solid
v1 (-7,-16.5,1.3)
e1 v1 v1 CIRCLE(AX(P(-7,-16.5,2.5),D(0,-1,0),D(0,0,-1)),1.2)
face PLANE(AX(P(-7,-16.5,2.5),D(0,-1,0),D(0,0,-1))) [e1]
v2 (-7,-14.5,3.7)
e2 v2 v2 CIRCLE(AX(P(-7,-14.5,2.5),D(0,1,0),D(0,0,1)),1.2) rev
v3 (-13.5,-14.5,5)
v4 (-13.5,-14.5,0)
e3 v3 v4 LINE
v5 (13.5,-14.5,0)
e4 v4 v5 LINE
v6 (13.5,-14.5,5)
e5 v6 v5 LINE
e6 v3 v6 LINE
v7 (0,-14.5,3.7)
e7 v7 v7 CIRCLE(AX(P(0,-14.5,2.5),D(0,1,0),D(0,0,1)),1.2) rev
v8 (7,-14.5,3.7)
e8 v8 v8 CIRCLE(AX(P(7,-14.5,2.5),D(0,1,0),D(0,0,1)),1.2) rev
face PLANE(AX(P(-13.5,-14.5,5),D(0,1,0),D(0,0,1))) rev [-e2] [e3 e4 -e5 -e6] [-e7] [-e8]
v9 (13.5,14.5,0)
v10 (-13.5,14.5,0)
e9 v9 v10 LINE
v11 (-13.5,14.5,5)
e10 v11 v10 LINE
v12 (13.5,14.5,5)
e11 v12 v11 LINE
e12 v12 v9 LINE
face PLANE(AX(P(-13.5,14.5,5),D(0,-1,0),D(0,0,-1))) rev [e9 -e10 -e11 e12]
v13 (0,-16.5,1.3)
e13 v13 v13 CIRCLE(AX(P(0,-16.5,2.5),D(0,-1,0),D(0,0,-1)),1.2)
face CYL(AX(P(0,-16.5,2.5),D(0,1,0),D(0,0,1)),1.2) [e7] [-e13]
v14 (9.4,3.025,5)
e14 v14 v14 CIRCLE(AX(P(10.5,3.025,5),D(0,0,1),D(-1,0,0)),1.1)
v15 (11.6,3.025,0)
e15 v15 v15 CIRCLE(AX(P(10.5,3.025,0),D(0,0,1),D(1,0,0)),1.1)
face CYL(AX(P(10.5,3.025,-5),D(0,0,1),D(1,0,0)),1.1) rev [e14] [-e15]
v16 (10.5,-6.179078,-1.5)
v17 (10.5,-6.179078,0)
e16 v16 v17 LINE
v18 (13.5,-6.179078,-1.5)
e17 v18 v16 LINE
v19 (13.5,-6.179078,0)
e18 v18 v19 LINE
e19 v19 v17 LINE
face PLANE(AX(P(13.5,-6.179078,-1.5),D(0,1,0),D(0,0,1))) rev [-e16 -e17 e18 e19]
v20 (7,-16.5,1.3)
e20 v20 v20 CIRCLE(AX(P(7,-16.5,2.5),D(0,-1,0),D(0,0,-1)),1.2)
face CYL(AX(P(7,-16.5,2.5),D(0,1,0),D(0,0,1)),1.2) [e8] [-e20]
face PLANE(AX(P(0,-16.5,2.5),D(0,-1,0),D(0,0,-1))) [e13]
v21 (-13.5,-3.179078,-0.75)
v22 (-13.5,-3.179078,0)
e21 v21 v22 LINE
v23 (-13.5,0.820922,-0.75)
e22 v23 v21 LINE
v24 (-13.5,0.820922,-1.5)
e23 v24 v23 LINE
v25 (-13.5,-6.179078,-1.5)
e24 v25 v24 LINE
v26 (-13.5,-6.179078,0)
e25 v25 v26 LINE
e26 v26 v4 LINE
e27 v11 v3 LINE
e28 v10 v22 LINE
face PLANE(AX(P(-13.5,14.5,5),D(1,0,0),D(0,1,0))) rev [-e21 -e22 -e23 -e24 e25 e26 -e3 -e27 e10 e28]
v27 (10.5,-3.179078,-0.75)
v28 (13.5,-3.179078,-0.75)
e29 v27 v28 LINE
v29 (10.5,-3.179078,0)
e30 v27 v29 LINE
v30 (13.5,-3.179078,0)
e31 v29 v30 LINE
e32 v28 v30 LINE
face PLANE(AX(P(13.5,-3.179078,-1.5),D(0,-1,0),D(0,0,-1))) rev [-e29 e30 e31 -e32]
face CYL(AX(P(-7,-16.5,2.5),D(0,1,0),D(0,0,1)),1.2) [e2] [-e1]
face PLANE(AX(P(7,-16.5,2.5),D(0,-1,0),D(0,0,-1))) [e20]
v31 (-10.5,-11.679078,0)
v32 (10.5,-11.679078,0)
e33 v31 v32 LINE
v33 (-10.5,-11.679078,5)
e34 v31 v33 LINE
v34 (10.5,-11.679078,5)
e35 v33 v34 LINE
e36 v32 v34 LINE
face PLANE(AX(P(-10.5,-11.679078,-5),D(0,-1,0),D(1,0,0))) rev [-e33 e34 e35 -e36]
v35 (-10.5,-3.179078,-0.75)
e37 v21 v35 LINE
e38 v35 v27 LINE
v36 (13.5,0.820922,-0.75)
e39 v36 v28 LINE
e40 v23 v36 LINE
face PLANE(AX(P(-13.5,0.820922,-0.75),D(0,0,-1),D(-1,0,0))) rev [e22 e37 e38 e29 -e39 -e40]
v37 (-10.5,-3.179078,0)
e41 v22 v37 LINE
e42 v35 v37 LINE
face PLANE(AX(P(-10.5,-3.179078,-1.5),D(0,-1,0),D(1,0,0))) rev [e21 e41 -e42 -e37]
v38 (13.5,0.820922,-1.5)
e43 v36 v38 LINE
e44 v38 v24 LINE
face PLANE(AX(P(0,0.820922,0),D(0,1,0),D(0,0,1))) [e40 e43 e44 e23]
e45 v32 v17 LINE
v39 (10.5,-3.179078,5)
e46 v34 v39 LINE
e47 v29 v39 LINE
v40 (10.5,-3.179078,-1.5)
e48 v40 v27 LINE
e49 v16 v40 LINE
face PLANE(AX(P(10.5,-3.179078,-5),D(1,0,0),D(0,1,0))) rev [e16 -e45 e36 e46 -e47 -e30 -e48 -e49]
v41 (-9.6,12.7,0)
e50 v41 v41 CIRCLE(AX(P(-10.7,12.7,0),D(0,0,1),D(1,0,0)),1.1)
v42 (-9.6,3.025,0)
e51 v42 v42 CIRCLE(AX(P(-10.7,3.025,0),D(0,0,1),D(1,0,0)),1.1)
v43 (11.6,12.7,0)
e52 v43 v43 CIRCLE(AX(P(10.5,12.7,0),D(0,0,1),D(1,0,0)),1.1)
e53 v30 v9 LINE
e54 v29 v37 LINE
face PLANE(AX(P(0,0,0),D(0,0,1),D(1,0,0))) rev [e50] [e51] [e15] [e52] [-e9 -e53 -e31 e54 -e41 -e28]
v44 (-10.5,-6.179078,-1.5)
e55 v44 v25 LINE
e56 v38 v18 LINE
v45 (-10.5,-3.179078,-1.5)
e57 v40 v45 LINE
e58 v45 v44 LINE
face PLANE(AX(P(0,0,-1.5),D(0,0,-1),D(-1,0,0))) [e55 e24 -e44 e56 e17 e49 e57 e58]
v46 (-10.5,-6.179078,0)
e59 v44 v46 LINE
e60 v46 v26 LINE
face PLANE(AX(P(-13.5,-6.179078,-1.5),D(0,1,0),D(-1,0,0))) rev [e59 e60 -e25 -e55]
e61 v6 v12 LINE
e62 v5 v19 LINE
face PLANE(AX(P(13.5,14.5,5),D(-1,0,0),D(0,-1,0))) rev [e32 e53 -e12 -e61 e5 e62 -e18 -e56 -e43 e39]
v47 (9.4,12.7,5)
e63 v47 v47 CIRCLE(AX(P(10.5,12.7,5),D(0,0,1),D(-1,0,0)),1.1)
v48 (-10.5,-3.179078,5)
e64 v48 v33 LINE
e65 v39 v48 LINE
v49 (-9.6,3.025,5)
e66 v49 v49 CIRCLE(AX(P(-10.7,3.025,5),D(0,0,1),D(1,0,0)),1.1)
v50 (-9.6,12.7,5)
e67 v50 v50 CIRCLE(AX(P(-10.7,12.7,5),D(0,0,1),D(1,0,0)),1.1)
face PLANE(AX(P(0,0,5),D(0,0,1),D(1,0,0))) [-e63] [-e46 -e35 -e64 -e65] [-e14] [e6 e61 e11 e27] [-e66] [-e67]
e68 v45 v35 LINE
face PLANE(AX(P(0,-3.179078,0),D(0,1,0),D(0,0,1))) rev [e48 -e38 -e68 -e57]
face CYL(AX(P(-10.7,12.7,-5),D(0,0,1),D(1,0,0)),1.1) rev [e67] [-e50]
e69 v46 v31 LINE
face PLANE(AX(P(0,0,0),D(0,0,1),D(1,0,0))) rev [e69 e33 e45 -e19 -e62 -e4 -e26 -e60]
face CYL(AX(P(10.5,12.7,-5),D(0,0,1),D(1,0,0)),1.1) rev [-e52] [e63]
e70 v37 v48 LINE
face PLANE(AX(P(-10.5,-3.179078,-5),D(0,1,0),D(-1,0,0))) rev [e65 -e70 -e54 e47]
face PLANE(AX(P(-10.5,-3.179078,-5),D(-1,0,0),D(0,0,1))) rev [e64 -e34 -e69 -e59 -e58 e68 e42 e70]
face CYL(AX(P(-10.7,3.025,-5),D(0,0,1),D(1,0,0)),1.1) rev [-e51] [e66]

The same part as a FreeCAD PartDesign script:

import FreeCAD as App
import Part
import Sketcher

V = App.Vector


def add_polygon(sketch, points):
    """Adds a closed chain of lines whose ends are joined by coincident constraints."""
    first, n = sketch.GeometryCount, len(points)
    for a, b in zip(points, points[1:] + points[:1]):
        sketch.addGeometry(Part.LineSegment(App.Vector(*a, 0), App.Vector(*b, 0)), False)
    for i in range(n):
        sketch.addConstraint(Sketcher.Constraint("Coincident", first + i, 2, first + (i + 1) % n, 1))

doc = App.newDocument("Part")
params = doc.addObject("Spreadsheet::Sheet", "Params")
for row, (alias, value) in enumerate([
    ("sketch1_width", "27 mm"),
    ("sketch1_height", "29 mm"),
    ("pad1_length", "5 mm"),
    ("sketch2_diameter", "2.2 mm"),
    ("pocket1_length", "10 mm"),
    ("sketch3_width", "21 mm"),
    ("sketch3_height", "8.5 mm"),
    ("pocket2_length", "10 mm"),
    ("sketch4_diameter", "2.4 mm"),
    ("pad2_length", "2 mm"),
    ("sketch5_width", "3 mm"),
    ("pad3_length", "1.5 mm"),
    ("sketch6_width", "27 mm"),
    ("sketch6_height", "0.75 mm"),
    ("pad4_length", "4 mm"),
], start=1):
    params.set(f"A{row}", alias)
    params.set(f"B{row}", "=" + value)
    params.setAlias(f"B{row}", alias)

body = doc.addObject("PartDesign::Body", "Body")

# Sketch on XY plane
sketch1 = body.newObject("Sketcher::SketchObject", "Sketch")
sketch1.AttachmentSupport = (doc.getObject("XY_Plane"), [""])
sketch1.MapMode = "FlatFace"
add_polygon(sketch1, [(-13.5, 14.5), (-13.5, -14.5), (13.5, -14.5), (13.5, 14.5)])  # lines 0-3
sketch1.addConstraint([
    Sketcher.Constraint("Vertical", 0),
    Sketcher.Constraint("Horizontal", 1),
    Sketcher.Constraint("Vertical", 2),
    Sketcher.Constraint("Horizontal", 3),
    Sketcher.Constraint("Symmetric", 0, 2, 2, 2, -1, 1),
    Sketcher.Constraint("DistanceX", 1, 1, 1, 2, 27.0),
    Sketcher.Constraint("DistanceY", 0, 2, 0, 1, 29.0),
])
sketch1.setExpression("Constraints[9]", "Params.sketch1_width")
sketch1.setExpression("Constraints[10]", "Params.sketch1_height")
pad1 = body.newObject("PartDesign::Pad", "Pad")
pad1.Profile = sketch1
pad1.setExpression("Length", "Params.pad1_length")

# Sketch on XY plane
sketch2 = body.newObject("Sketcher::SketchObject", "Sketch001")
sketch2.AttachmentSupport = (doc.getObject("XY_Plane"), [""])
sketch2.MapMode = "FlatFace"
sketch2.AttachmentOffset = App.Placement(V(0, 0, 5), App.Rotation())
sketch2.addGeometry([
    Part.Circle(V(-10.7, 12.7, 0), V(0, 0, 1), 1.1),
    Part.Circle(V(10.5, 12.7, 0), V(0, 0, 1), 1.1),
    Part.Circle(V(-10.7, 3.025, 0), V(0, 0, 1), 1.1),
    Part.Circle(V(10.5, 3.025, 0), V(0, 0, 1), 1.1),
], False)
sketch2.addConstraint([
    Sketcher.Constraint("Equal", 0, 1),
    Sketcher.Constraint("Equal", 1, 2),
    Sketcher.Constraint("Equal", 2, 3),
    Sketcher.Constraint("Horizontal", 0, 3, 1, 3),
    Sketcher.Constraint("Horizontal", 2, 3, 3, 3),
    Sketcher.Constraint("Vertical", 0, 3, 2, 3),
    Sketcher.Constraint("Vertical", 1, 3, 3, 3),
    Sketcher.Constraint("Diameter", 0, 2.2),
    Sketcher.Constraint("DistanceX", 0, 3, -1, 1, 10.7),
    Sketcher.Constraint("DistanceY", -1, 1, 0, 3, 12.7),
    Sketcher.Constraint("DistanceX", -1, 1, 1, 3, 10.5),
    Sketcher.Constraint("DistanceY", -1, 1, 2, 3, 3.025),
])
sketch2.setExpression("Constraints[7]", "Params.sketch2_diameter")
pocket1 = body.newObject("PartDesign::Pocket", "Pocket")
pocket1.Profile = sketch2
pocket1.setExpression("Length", "Params.pocket1_length")

# Sketch on XY plane
sketch3 = body.newObject("Sketcher::SketchObject", "Sketch002")
sketch3.AttachmentSupport = (doc.getObject("XY_Plane"), [""])
sketch3.MapMode = "FlatFace"
sketch3.AttachmentOffset = App.Placement(V(0, 0, 5), App.Rotation())
add_polygon(sketch3, [(-10.5, -3.179078), (-10.5, -11.679078), (10.5, -11.679078), (10.5, -3.179078)])  # lines 0-3
sketch3.addConstraint([
    Sketcher.Constraint("Vertical", 0),
    Sketcher.Constraint("Horizontal", 1),
    Sketcher.Constraint("Vertical", 2),
    Sketcher.Constraint("Horizontal", 3),
    Sketcher.Constraint("DistanceX", 1, 1, 1, 2, 21.0),
    Sketcher.Constraint("DistanceY", 0, 2, 0, 1, 8.5),
    Sketcher.Constraint("DistanceX", 0, 2, -1, 1, 10.5),
    Sketcher.Constraint("DistanceY", 0, 2, -1, 1, 11.679078),
])
sketch3.setExpression("Constraints[8]", "Params.sketch3_width")
sketch3.setExpression("Constraints[9]", "Params.sketch3_height")
pocket2 = body.newObject("PartDesign::Pocket", "Pocket001")
pocket2.Profile = sketch3
pocket2.setExpression("Length", "Params.pocket2_length")

# Sketch on XZ plane
sketch4 = body.newObject("Sketcher::SketchObject", "Sketch003")
sketch4.AttachmentSupport = (doc.getObject("XZ_Plane"), [""])
sketch4.MapMode = "FlatFace"
sketch4.AttachmentOffset = App.Placement(V(0, 0, 14.5), App.Rotation())
sketch4.addGeometry([
    Part.Circle(V(-7, 2.5, 0), V(0, 0, 1), 1.2),
    Part.Circle(V(0, 2.5, 0), V(0, 0, 1), 1.2),
    Part.Circle(V(7, 2.5, 0), V(0, 0, 1), 1.2),
], False)
sketch4.addConstraint([
    Sketcher.Constraint("Equal", 0, 1),
    Sketcher.Constraint("Equal", 1, 2),
    Sketcher.Constraint("Symmetric", 0, 3, 2, 3, -2),
    Sketcher.Constraint("PointOnObject", 1, 3, -2),
    Sketcher.Constraint("Horizontal", 0, 3, 1, 3),
    Sketcher.Constraint("Diameter", 0, 2.4),
    Sketcher.Constraint("DistanceX", 0, 3, -1, 1, 7.0),
    Sketcher.Constraint("DistanceY", -1, 1, 0, 3, 2.5),
])
sketch4.setExpression("Constraints[5]", "Params.sketch4_diameter")
pad2 = body.newObject("PartDesign::Pad", "Pad001")
pad2.Profile = sketch4
pad2.setExpression("Length", "Params.pad2_length")

# Sketch on XY plane
sketch5 = body.newObject("Sketcher::SketchObject", "Sketch004")
sketch5.AttachmentSupport = (doc.getObject("XY_Plane"), [""])
sketch5.MapMode = "FlatFace"
add_polygon(sketch5, [(13.5, -3.179078), (13.5, -6.179078), (10.5, -6.179078), (10.5, -3.179078)])  # lines 0-3
add_polygon(sketch5, [(-10.5, -3.179078), (-10.5, -6.179078), (-13.5, -6.179078), (-13.5, -3.179078)])  # lines 4-7
sketch5.addConstraint([
    Sketcher.Constraint("Vertical", 0),
    Sketcher.Constraint("Horizontal", 1),
    Sketcher.Constraint("Vertical", 2),
    Sketcher.Constraint("Horizontal", 3),
    Sketcher.Constraint("Vertical", 4),
    Sketcher.Constraint("Horizontal", 5),
    Sketcher.Constraint("Vertical", 6),
    Sketcher.Constraint("Horizontal", 7),
    Sketcher.Constraint("Symmetric", 1, 2, 4, 2, -2),
    Sketcher.Constraint("Symmetric", 3, 2, 6, 2, -2),
    Sketcher.Constraint("Equal", 7, 0),
    Sketcher.Constraint("DistanceX", 1, 2, 1, 1, 3.0),
    Sketcher.Constraint("DistanceX", 4, 2, 1, 2, 21.0),
    Sketcher.Constraint("DistanceY", 0, 2, -1, 1, 6.179078),
])
sketch5.setExpression("Constraints[19]", "Params.sketch5_width")
pad3 = body.newObject("PartDesign::Pad", "Pad002")
pad3.Profile = sketch5
pad3.setExpression("Length", "Params.pad3_length")
pad3.Reversed = True

# Sketch on XZ plane
sketch6 = body.newObject("Sketcher::SketchObject", "Sketch005")
sketch6.AttachmentSupport = (doc.getObject("XZ_Plane"), [""])
sketch6.MapMode = "FlatFace"
sketch6.AttachmentOffset = App.Placement(V(0, 0, 3.179078), App.Rotation())
add_polygon(sketch6, [(-13.5, -1.5), (-13.5, -0.75), (13.5, -0.75), (13.5, -1.5)])  # lines 0-3
sketch6.addConstraint([
    Sketcher.Constraint("Vertical", 0),
    Sketcher.Constraint("Horizontal", 1),
    Sketcher.Constraint("Vertical", 2),
    Sketcher.Constraint("Horizontal", 3),
    Sketcher.Constraint("DistanceX", 1, 1, 1, 2, 27.0),
    Sketcher.Constraint("DistanceY", 0, 1, 0, 2, 0.75),
    Sketcher.Constraint("DistanceX", 0, 2, -1, 1, 13.5),
    Sketcher.Constraint("DistanceY", 2, 2, -1, 1, 1.5),
])
sketch6.setExpression("Constraints[8]", "Params.sketch6_width")
sketch6.setExpression("Constraints[9]", "Params.sketch6_height")
pad4 = body.newObject("PartDesign::Pad", "Pad003")
pad4.Profile = sketch6
pad4.setExpression("Length", "Params.pad4_length")
pad4.Reversed = True

doc.recompute()
